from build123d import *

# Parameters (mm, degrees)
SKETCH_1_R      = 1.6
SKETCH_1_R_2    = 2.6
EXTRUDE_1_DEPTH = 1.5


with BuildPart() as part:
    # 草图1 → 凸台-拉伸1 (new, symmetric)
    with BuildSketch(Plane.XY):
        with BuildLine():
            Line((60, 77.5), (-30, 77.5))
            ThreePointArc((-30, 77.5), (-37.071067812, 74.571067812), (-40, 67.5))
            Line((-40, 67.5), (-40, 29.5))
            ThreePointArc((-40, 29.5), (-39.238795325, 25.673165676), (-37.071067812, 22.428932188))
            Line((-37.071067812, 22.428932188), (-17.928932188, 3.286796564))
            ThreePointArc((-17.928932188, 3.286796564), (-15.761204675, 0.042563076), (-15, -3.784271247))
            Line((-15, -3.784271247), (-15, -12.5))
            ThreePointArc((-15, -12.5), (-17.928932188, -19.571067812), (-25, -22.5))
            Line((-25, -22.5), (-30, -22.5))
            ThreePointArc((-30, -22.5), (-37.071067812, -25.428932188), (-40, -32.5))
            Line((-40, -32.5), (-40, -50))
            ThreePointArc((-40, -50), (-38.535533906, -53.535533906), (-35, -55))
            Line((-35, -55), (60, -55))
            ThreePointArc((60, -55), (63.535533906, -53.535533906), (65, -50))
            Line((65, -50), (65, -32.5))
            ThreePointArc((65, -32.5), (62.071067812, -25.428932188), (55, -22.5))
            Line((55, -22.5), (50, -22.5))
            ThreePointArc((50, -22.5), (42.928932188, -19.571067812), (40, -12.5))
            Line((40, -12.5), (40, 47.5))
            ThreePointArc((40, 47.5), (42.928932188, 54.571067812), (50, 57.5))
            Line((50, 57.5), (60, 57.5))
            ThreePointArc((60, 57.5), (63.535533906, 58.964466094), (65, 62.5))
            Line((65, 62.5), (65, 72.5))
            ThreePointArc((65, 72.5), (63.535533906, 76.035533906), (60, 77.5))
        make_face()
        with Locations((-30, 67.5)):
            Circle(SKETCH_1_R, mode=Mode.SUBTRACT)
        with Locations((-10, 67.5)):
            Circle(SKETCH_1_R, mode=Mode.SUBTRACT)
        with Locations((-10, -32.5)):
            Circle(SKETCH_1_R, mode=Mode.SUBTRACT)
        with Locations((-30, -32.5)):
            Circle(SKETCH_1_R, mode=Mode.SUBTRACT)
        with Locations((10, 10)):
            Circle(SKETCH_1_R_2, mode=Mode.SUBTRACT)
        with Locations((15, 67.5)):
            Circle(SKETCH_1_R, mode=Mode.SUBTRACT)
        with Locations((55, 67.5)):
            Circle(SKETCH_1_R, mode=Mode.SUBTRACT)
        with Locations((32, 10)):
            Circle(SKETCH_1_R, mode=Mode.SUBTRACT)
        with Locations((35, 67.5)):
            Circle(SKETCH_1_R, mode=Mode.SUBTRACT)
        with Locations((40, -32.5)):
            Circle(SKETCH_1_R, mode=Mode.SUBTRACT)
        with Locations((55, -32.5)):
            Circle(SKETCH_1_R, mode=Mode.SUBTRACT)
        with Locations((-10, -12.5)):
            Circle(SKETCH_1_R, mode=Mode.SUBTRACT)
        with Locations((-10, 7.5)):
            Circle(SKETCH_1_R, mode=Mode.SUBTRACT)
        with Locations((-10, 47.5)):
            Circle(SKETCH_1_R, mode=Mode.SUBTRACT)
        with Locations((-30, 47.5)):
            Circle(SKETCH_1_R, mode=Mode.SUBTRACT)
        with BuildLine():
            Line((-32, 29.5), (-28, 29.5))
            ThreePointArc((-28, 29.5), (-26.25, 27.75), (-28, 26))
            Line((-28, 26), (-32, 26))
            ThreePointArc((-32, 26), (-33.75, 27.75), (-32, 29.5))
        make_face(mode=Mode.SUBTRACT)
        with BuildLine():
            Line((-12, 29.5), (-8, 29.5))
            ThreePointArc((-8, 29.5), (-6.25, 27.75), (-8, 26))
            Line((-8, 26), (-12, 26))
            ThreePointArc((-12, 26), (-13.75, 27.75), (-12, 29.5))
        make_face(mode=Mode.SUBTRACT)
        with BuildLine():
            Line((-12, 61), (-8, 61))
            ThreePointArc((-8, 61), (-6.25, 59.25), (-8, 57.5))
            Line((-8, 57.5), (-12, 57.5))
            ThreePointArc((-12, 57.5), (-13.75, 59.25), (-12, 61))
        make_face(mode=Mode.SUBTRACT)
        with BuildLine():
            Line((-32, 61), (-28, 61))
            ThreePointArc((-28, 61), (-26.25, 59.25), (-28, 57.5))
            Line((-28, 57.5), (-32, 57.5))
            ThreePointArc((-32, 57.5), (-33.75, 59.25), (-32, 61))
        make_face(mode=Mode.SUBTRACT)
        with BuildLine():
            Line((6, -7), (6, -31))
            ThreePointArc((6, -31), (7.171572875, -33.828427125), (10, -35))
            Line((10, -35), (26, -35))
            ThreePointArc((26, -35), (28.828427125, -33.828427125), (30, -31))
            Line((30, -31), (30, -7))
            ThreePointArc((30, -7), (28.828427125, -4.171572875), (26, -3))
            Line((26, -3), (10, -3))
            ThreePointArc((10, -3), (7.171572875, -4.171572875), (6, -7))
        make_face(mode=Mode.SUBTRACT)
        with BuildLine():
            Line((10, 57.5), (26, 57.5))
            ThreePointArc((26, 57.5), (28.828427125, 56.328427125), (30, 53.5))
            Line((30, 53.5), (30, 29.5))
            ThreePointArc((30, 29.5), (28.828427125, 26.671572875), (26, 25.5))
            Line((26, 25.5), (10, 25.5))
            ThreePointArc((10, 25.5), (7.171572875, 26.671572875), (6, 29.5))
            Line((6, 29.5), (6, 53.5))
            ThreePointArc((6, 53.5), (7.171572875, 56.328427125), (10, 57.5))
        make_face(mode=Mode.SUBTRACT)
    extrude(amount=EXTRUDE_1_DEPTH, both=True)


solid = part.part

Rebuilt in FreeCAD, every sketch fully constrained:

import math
import FreeCAD as App
import Part
import Sketcher
from FreeCAD import Vector
Q = App.Units.Quantity

doc = App.newDocument("Part")
body = doc.addObject("PartDesign::Body", "Body")

# Sketch on XY plane
sketch1 = body.newObject("Sketcher::SketchObject", "Sketch")
sketch1.AttachmentSupport = (doc.getObject("XY_Plane"), [""])
sketch1.MapMode = "FlatFace"
sketch1.addGeometry([
    Part.LineSegment(Vector(60, 77.5, 0), Vector(-30, 77.5, 0)),  # 0
    Part.ArcOfCircle(Part.Circle(Vector(-30, 67.5, 0), Vector(0, 0, 1), 10), math.radians(90), math.radians(180)),  # 1
    Part.LineSegment(Vector(-40, 67.5, 0), Vector(-40, 29.5, 0)),  # 2
    Part.ArcOfCircle(Part.Circle(Vector(-30, 29.5, 0), Vector(0, 0, 1), 10), math.radians(180), math.radians(225)),  # 3
    Part.LineSegment(Vector(-37.1, 22.4, 0), Vector(-17.9, 3.3, 0)),  # 4
    Part.ArcOfCircle(Part.Circle(Vector(-25, -3.8, 0), Vector(0, 0, 1), 10), math.radians(0), math.radians(45)),  # 5
    Part.LineSegment(Vector(-15, -3.8, 0), Vector(-15, -12.5, 0)),  # 6
    Part.ArcOfCircle(Part.Circle(Vector(-25, -12.5, 0), Vector(0, 0, 1), 10), math.radians(-90), math.radians(0)),  # 7
    Part.LineSegment(Vector(-25, -22.5, 0), Vector(-30, -22.5, 0)),  # 8
    Part.ArcOfCircle(Part.Circle(Vector(-30, -32.5, 0), Vector(0, 0, 1), 10), math.radians(90), math.radians(180)),  # 9
    Part.LineSegment(Vector(-40, -32.5, 0), Vector(-40, -50, 0)),  # 10
    Part.ArcOfCircle(Part.Circle(Vector(-35, -50, 0), Vector(0, 0, 1), 5), math.radians(180), math.radians(270)),  # 11
    Part.LineSegment(Vector(-35, -55, 0), Vector(60, -55, 0)),  # 12
    Part.ArcOfCircle(Part.Circle(Vector(60, -50, 0), Vector(0, 0, 1), 5), math.radians(-90), math.radians(0)),  # 13
    Part.LineSegment(Vector(65, -50, 0), Vector(65, -32.5, 0)),  # 14
    Part.ArcOfCircle(Part.Circle(Vector(55, -32.5, 0), Vector(0, 0, 1), 10), math.radians(0), math.radians(90)),  # 15
    Part.LineSegment(Vector(55, -22.5, 0), Vector(50, -22.5, 0)),  # 16
    Part.ArcOfCircle(Part.Circle(Vector(50, -12.5, 0), Vector(0, 0, 1), 10), math.radians(180), math.radians(270)),  # 17
    Part.LineSegment(Vector(40, -12.5, 0), Vector(40, 47.5, 0)),  # 18
    Part.ArcOfCircle(Part.Circle(Vector(50, 47.5, 0), Vector(0, 0, 1), 10), math.radians(90), math.radians(180)),  # 19
    Part.LineSegment(Vector(50, 57.5, 0), Vector(60, 57.5, 0)),  # 20
    Part.ArcOfCircle(Part.Circle(Vector(60, 62.5, 0), Vector(0, 0, 1), 5), math.radians(-90), math.radians(0)),  # 21
    Part.LineSegment(Vector(65, 62.5, 0), Vector(65, 72.5, 0)),  # 22
    Part.ArcOfCircle(Part.Circle(Vector(60, 72.5, 0), Vector(0, 0, 1), 5), math.radians(0), math.radians(90)),  # 23
    Part.Circle(Vector(-30, -32.5, 0), Vector(0, 0, 1), 1.6),  # 24
    Part.Circle(Vector(-10, -32.5, 0), Vector(0, 0, 1), 1.6),  # 25
    Part.Circle(Vector(-10, -12.5, 0), Vector(0, 0, 1), 1.6),  # 26
    Part.Circle(Vector(-10, 7.5, 0), Vector(0, 0, 1), 1.6),  # 27
    Part.Circle(Vector(10, 10, 0), Vector(0, 0, 1), 2.6),  # 28
    Part.LineSegment(Vector(6, -31, 0), Vector(6, -7, 0)),  # 29
    Part.ArcOfCircle(Part.Circle(Vector(10, -7, 0), Vector(0, 0, 1), 4), math.radians(90), math.radians(180)),  # 30
    Part.LineSegment(Vector(10, -3, 0), Vector(26, -3, 0)),  # 31
    Part.ArcOfCircle(Part.Circle(Vector(26, -7, 0), Vector(0, 0, 1), 4), math.radians(0), math.radians(90)),  # 32
    Part.LineSegment(Vector(30, -7, 0), Vector(30, -31, 0)),  # 33
    Part.ArcOfCircle(Part.Circle(Vector(26, -31, 0), Vector(0, 0, 1), 4), math.radians(-90), math.radians(0)),  # 34
    Part.LineSegment(Vector(26, -35, 0), Vector(10, -35, 0)),  # 35
    Part.ArcOfCircle(Part.Circle(Vector(10, -31, 0), Vector(0, 0, 1), 4), math.radians(180), math.radians(270)),  # 36
    Part.Circle(Vector(40, -32.5, 0), Vector(0, 0, 1), 1.6),  # 37
    Part.Circle(Vector(55, -32.5, 0), Vector(0, 0, 1), 1.6),  # 38
    Part.Circle(Vector(32, 10, 0), Vector(0, 0, 1), 1.6),  # 39
    Part.ArcOfCircle(Part.Circle(Vector(-32, 27.8, 0), Vector(0, 0, 1), 1.8), math.radians(90), math.radians(270)),  # 40
    Part.LineSegment(Vector(-32, 29.5, 0), Vector(-28, 29.5, 0)),  # 41
    Part.ArcOfCircle(Part.Circle(Vector(-28, 27.8, 0), Vector(0, 0, 1), 1.8), math.radians(-90), math.radians(90)),  # 42
    Part.LineSegment(Vector(-28, 26, 0), Vector(-32, 26, 0)),  # 43
    Part.ArcOfCircle(Part.Circle(Vector(-12, 27.8, 0), Vector(0, 0, 1), 1.8), math.radians(90), math.radians(270)),  # 44
    Part.LineSegment(Vector(-12, 29.5, 0), Vector(-8, 29.5, 0)),  # 45
    Part.ArcOfCircle(Part.Circle(Vector(-8, 27.8, 0), Vector(0, 0, 1), 1.8), math.radians(-90), math.radians(90)),  # 46
    Part.LineSegment(Vector(-8, 26, 0), Vector(-12, 26, 0)),  # 47
    Part.Circle(Vector(-30, 47.5, 0), Vector(0, 0, 1), 1.6),  # 48
    Part.ArcOfCircle(Part.Circle(Vector(-32, 59.2, 0), Vector(0, 0, 1), 1.8), math.radians(90), math.radians(270)),  # 49
    Part.LineSegment(Vector(-32, 61, 0), Vector(-28, 61, 0)),  # 50
    Part.ArcOfCircle(Part.Circle(Vector(-28, 59.2, 0), Vector(0, 0, 1), 1.8), math.radians(-90), math.radians(90)),  # 51
    Part.LineSegment(Vector(-28, 57.5, 0), Vector(-32, 57.5, 0)),  # 52
    Part.Circle(Vector(-30, 67.5, 0), Vector(0, 0, 1), 1.6),  # 53
    Part.Circle(Vector(-10, 47.5, 0), Vector(0, 0, 1), 1.6),  # 54
    Part.ArcOfCircle(Part.Circle(Vector(-12, 59.2, 0), Vector(0, 0, 1), 1.8), math.radians(90), math.radians(270)),  # 55
    Part.LineSegment(Vector(-12, 61, 0), Vector(-8, 61, 0)),  # 56
    Part.ArcOfCircle(Part.Circle(Vector(-8, 59.2, 0), Vector(0, 0, 1), 1.8), math.radians(-90), math.radians(90)),  # 57
    Part.LineSegment(Vector(-8, 57.5, 0), Vector(-12, 57.5, 0)),  # 58
    Part.Circle(Vector(-10, 67.5, 0), Vector(0, 0, 1), 1.6),  # 59
    Part.ArcOfCircle(Part.Circle(Vector(10, 53.5, 0), Vector(0, 0, 1), 4), math.radians(90), math.radians(180)),  # 60
    Part.LineSegment(Vector(10, 57.5, 0), Vector(26, 57.5, 0)),  # 61
    Part.ArcOfCircle(Part.Circle(Vector(26, 53.5, 0), Vector(0, 0, 1), 4), math.radians(0), math.radians(90)),  # 62
    Part.LineSegment(Vector(30, 53.5, 0), Vector(30, 29.5, 0)),  # 63
    Part.ArcOfCircle(Part.Circle(Vector(26, 29.5, 0), Vector(0, 0, 1), 4), math.radians(-90), math.radians(0)),  # 64
    Part.LineSegment(Vector(26, 25.5, 0), Vector(10, 25.5, 0)),  # 65
    Part.ArcOfCircle(Part.Circle(Vector(10, 29.5, 0), Vector(0, 0, 1), 4), math.radians(180), math.radians(270)),  # 66
    Part.LineSegment(Vector(6, 29.5, 0), Vector(6, 53.5, 0)),  # 67
    Part.Circle(Vector(15, 67.5, 0), Vector(0, 0, 1), 1.6),  # 68
    Part.Circle(Vector(35, 67.5, 0), Vector(0, 0, 1), 1.6),  # 69
    Part.Circle(Vector(55, 67.5, 0), Vector(0, 0, 1), 1.6),  # 70
], False)
sketch1.addConstraint([
    Sketcher.Constraint("Tangent", 0, 2, 1, 1),
    Sketcher.Constraint("Tangent", 1, 2, 2, 1),
    Sketcher.Constraint("Tangent", 2, 2, 3, 1),
    Sketcher.Constraint("Tangent", 3, 2, 4, 1),
    Sketcher.Constraint("Tangent", 4, 2, 5, 2),
    Sketcher.Constraint("Tangent", 5, 1, 6, 1),
    Sketcher.Constraint("Tangent", 6, 2, 7, 2),
    Sketcher.Constraint("Tangent", 7, 1, 8, 1),
    Sketcher.Constraint("Tangent", 8, 2, 9, 1),
    Sketcher.Constraint("Tangent", 9, 2, 10, 1),
    Sketcher.Constraint("Tangent", 10, 2, 11, 1),
    Sketcher.Constraint("Tangent", 11, 2, 12, 1),
    Sketcher.Constraint("Tangent", 12, 2, 13, 1),
    Sketcher.Constraint("Tangent", 13, 2, 14, 1),
    Sketcher.Constraint("Tangent", 14, 2, 15, 1),
    Sketcher.Constraint("Tangent", 15, 2, 16, 1),
    Sketcher.Constraint("Tangent", 16, 2, 17, 2),
    Sketcher.Constraint("Tangent", 17, 1, 18, 1),
    Sketcher.Constraint("Tangent", 18, 2, 19, 2),
    Sketcher.Constraint("Tangent", 19, 1, 20, 1),
    Sketcher.Constraint("Tangent", 20, 2, 21, 1),
    Sketcher.Constraint("Tangent", 21, 2, 22, 1),
    Sketcher.Constraint("Tangent", 22, 2, 23, 1),
    Sketcher.Constraint("Tangent", 23, 2, 0, 1),
    Sketcher.Constraint("Tangent", 29, 2, 30, 2),
    Sketcher.Constraint("Tangent", 30, 1, 31, 1),
    Sketcher.Constraint("Tangent", 31, 2, 32, 2),
    Sketcher.Constraint("Tangent", 32, 1, 33, 1),
    Sketcher.Constraint("Tangent", 33, 2, 34, 2),
    Sketcher.Constraint("Tangent", 34, 1, 35, 1),
    Sketcher.Constraint("Tangent", 35, 2, 36, 2),
    Sketcher.Constraint("Tangent", 36, 1, 29, 1),
    Sketcher.Constraint("Tangent", 40, 1, 41, 1),
    Sketcher.Constraint("Tangent", 41, 2, 42, 2),
    Sketcher.Constraint("Tangent", 42, 1, 43, 1),
    Sketcher.Constraint("Tangent", 43, 2, 40, 2),
    Sketcher.Constraint("Tangent", 44, 1, 45, 1),
    Sketcher.Constraint("Tangent", 45, 2, 46, 2),
    Sketcher.Constraint("Tangent", 46, 1, 47, 1),
    Sketcher.Constraint("Tangent", 47, 2, 44, 2),
    Sketcher.Constraint("Tangent", 49, 1, 50, 1),
    Sketcher.Constraint("Tangent", 50, 2, 51, 2),
    Sketcher.Constraint("Tangent", 51, 1, 52, 1),
    Sketcher.Constraint("Tangent", 52, 2, 49, 2),
    Sketcher.Constraint("Tangent", 55, 1, 56, 1),
    Sketcher.Constraint("Tangent", 56, 2, 57, 2),
    Sketcher.Constraint("Tangent", 57, 1, 58, 1),
    Sketcher.Constraint("Tangent", 58, 2, 55, 2),
    Sketcher.Constraint("Tangent", 60, 1, 61, 1),
    Sketcher.Constraint("Tangent", 61, 2, 62, 2),
    Sketcher.Constraint("Tangent", 62, 1, 63, 1),
    Sketcher.Constraint("Tangent", 63, 2, 64, 2),
    Sketcher.Constraint("Tangent", 64, 1, 65, 1),
    Sketcher.Constraint("Tangent", 65, 2, 66, 2),
    Sketcher.Constraint("Tangent", 66, 1, 67, 1),
    Sketcher.Constraint("Tangent", 67, 2, 60, 2),
    Sketcher.Constraint("Horizontal", 0),
    Sketcher.Constraint("Vertical", 2),
    Sketcher.Constraint("Vertical", 6),
    Sketcher.Constraint("Horizontal", 8),
    Sketcher.Constraint("Vertical", 10),
    Sketcher.Constraint("Horizontal", 12),
    Sketcher.Constraint("Vertical", 14),
    Sketcher.Constraint("Horizontal", 16),
    Sketcher.Constraint("Vertical", 18),
    Sketcher.Constraint("Horizontal", 20),
    Sketcher.Constraint("Vertical", 22),
    Sketcher.Constraint("Vertical", 29),
    Sketcher.Constraint("Horizontal", 31),
    Sketcher.Constraint("Vertical", 33),
    Sketcher.Constraint("Horizontal", 35),
    Sketcher.Constraint("Horizontal", 41),
    Sketcher.Constraint("Horizontal", 43),
    Sketcher.Constraint("Horizontal", 45),
    Sketcher.Constraint("Horizontal", 47),
    Sketcher.Constraint("Horizontal", 50),
    Sketcher.Constraint("Horizontal", 52),
    Sketcher.Constraint("Horizontal", 56),
    Sketcher.Constraint("Horizontal", 58),
    Sketcher.Constraint("Horizontal", 61),
    Sketcher.Constraint("Vertical", 63),
    Sketcher.Constraint("Horizontal", 65),
    Sketcher.Constraint("Vertical", 67),
    Sketcher.Constraint("Coincident", 24, 3, 9, 3),
    Sketcher.Constraint("Coincident", 38, 3, 15, 3),
    Sketcher.Constraint("Coincident", 53, 3, 1, 3),
    Sketcher.Constraint("Equal", 1, 3),
    Sketcher.Constraint("Equal", 3, 5),
    Sketcher.Constraint("Equal", 5, 7),
    Sketcher.Constraint("Equal", 7, 9),
    Sketcher.Constraint("Equal", 11, 13),
    Sketcher.Constraint("Equal", 9, 15),
    Sketcher.Constraint("Equal", 15, 17),
    Sketcher.Constraint("Equal", 17, 19),
    Sketcher.Constraint("Equal", 13, 21),
    Sketcher.Constraint("Equal", 21, 23),
    Sketcher.Constraint("Equal", 24, 25),
    Sketcher.Constraint("Equal", 25, 26),
    Sketcher.Constraint("Equal", 26, 27),
    Sketcher.Constraint("Equal", 30, 32),
    Sketcher.Constraint("Equal", 32, 34),
    Sketcher.Constraint("Equal", 34, 36),
    Sketcher.Constraint("Equal", 27, 37),
    Sketcher.Constraint("Equal", 37, 38),
    Sketcher.Constraint("Equal", 38, 39),
    Sketcher.Constraint("Equal", 42, 44),
    Sketcher.Constraint("Equal", 39, 48),
    Sketcher.Constraint("Equal", 46, 49),
    Sketcher.Constraint("Equal", 48, 53),
    Sketcher.Constraint("Equal", 53, 54),
    Sketcher.Constraint("Equal", 51, 55),
    Sketcher.Constraint("Equal", 54, 59),
    Sketcher.Constraint("Equal", 36, 60),
    Sketcher.Constraint("Equal", 60, 62),
    Sketcher.Constraint("Equal", 62, 64),
    Sketcher.Constraint("Equal", 64, 66),
    Sketcher.Constraint("Equal", 59, 68),
    Sketcher.Constraint("Equal", 68, 69),
    Sketcher.Constraint("Equal", 69, 70),
    Sketcher.Constraint("Horizontal", 9, 3, 15, 3),
    Sketcher.Constraint("Horizontal", 24, 3, 25, 3),
    Sketcher.Constraint("Horizontal", 17, 3, 26, 3),
    Sketcher.Constraint("Horizontal", 25, 3, 37, 3),
    Sketcher.Constraint("Horizontal", 28, 3, 39, 3),
    Sketcher.Constraint("Horizontal", 42, 3, 44, 3),
    Sketcher.Constraint("Horizontal", 19, 3, 48, 3),
    Sketcher.Constraint("Horizontal", 48, 3, 54, 3),
    Sketcher.Constraint("Horizontal", 51, 3, 55, 3),
    Sketcher.Constraint("Horizontal", 53, 3, 59, 3),
    Sketcher.Constraint("Horizontal", 3, 3, 64, 3),
    Sketcher.Constraint("Horizontal", 59, 3, 68, 3),
    Sketcher.Constraint("Horizontal", 68, 3, 69, 3),
    Sketcher.Constraint("Horizontal", 69, 3, 70, 3),
    Sketcher.Constraint("Horizontal", 2, 2, 40, 1),
    Sketcher.Constraint("Horizontal", 20, 2, 51, 1),
    Sketcher.Constraint("Horizontal", 58, 2, 60, 1),
    Sketcher.Constraint("Vertical", 3, 3, 9, 3),
    Sketcher.Constraint("Vertical", 13, 3, 21, 3),
    Sketcher.Constraint("Vertical", 25, 3, 26, 3),
    Sketcher.Constraint("Vertical", 26, 3, 27, 3),
    Sketcher.Constraint("Vertical", 28, 3, 30, 3),
    Sketcher.Constraint("Vertical", 24, 3, 48, 3),
    Sketcher.Constraint("Vertical", 40, 3, 49, 3),
    Sketcher.Constraint("Vertical", 42, 3, 51, 3),
    Sketcher.Constraint("Vertical", 27, 3, 54, 3),
    Sketcher.Constraint("Vertical", 44, 3, 55, 3),
    Sketcher.Constraint("Vertical", 46, 3, 57, 3),
    Sketcher.Constraint("Vertical", 54, 3, 59, 3),
    Sketcher.Constraint("Vertical", 36, 3, 60, 3),
    Sketcher.Constraint("Vertical", 34, 3, 62, 3),
    Sketcher.Constraint("Vertical", 38, 3, 70, 3),
    Sketcher.Constraint("Vertical", 37, 3, 17, 1),
    Sketcher.Constraint("Equal", 8, 16),
    Sketcher.Constraint("Equal", 43, 45),
    Sketcher.Constraint("Equal", 20, 22),
    Sketcher.Constraint("Equal", 33, 63),
    Sketcher.Constraint("Radius", 1, 10.0),
    Sketcher.Constraint("Radius", 11, 5.0),
    Sketcher.Constraint("Radius", 30, 4.0),
    Sketcher.Constraint("Diameter", 24, 3.2),
    Sketcher.Constraint("Diameter", 28, 5.2),
    Sketcher.Constraint("DistanceX", 0, 2, 0, 1, 90.0),
    Sketcher.Constraint("DistanceX", 8, 2, 8, 1, 5.0),
    Sketcher.Constraint("DistanceX", 31, 1, 31, 2, 16.0),
    Sketcher.Constraint("DistanceX", 41, 1, 41, 2, 4.0),
    Sketcher.Constraint("DistanceY", 2, 2, 2, 1, 38.0),
    Sketcher.Constraint("DistanceY", 18, 1, 18, 2, 60.0),
    Sketcher.Constraint("Angle", 4, Q("-45 deg")),
    Sketcher.Constraint("Radius", 40, 1.75),
    Sketcher.Constraint("DistanceY", 10, 2, 10, 1, 17.5),
    Sketcher.Constraint("DistanceX", 1, 3, -1, 1, 30.0),
    Sketcher.Constraint("DistanceY", 11, 3, -1, 1, 50.0),
    Sketcher.Constraint("DistanceX", 25, 3, -1, 1, 10.0),
    Sketcher.Constraint("DistanceX", -1, 1, 28, 3, 10.0),
    Sketcher.Constraint("DistanceY", -1, 1, 28, 3, 10.0),
    Sketcher.Constraint("DistanceY", 30, 3, -1, 1, 7.0),
    Sketcher.Constraint("DistanceX", -1, 1, 39, 3, 32.0),
    Sketcher.Constraint("DistanceX", 40, 3, -1, 1, 32.0),
    Sketcher.Constraint("DistanceX", 44, 3, -1, 1, 12.0),
    Sketcher.Constraint("DistanceX", -1, 1, 68, 3, 15.0),
    Sketcher.Constraint("DistanceX", -1, 1, 69, 3, 35.0),
    Sketcher.Constraint("DistanceY", -1, 1, 27, 3, 7.5),
])
pad1 = body.newObject("PartDesign::Pad", "Pad")
pad1.Profile = sketch1
pad1.Length = 3
pad1.Midplane = True

doc.recompute()
